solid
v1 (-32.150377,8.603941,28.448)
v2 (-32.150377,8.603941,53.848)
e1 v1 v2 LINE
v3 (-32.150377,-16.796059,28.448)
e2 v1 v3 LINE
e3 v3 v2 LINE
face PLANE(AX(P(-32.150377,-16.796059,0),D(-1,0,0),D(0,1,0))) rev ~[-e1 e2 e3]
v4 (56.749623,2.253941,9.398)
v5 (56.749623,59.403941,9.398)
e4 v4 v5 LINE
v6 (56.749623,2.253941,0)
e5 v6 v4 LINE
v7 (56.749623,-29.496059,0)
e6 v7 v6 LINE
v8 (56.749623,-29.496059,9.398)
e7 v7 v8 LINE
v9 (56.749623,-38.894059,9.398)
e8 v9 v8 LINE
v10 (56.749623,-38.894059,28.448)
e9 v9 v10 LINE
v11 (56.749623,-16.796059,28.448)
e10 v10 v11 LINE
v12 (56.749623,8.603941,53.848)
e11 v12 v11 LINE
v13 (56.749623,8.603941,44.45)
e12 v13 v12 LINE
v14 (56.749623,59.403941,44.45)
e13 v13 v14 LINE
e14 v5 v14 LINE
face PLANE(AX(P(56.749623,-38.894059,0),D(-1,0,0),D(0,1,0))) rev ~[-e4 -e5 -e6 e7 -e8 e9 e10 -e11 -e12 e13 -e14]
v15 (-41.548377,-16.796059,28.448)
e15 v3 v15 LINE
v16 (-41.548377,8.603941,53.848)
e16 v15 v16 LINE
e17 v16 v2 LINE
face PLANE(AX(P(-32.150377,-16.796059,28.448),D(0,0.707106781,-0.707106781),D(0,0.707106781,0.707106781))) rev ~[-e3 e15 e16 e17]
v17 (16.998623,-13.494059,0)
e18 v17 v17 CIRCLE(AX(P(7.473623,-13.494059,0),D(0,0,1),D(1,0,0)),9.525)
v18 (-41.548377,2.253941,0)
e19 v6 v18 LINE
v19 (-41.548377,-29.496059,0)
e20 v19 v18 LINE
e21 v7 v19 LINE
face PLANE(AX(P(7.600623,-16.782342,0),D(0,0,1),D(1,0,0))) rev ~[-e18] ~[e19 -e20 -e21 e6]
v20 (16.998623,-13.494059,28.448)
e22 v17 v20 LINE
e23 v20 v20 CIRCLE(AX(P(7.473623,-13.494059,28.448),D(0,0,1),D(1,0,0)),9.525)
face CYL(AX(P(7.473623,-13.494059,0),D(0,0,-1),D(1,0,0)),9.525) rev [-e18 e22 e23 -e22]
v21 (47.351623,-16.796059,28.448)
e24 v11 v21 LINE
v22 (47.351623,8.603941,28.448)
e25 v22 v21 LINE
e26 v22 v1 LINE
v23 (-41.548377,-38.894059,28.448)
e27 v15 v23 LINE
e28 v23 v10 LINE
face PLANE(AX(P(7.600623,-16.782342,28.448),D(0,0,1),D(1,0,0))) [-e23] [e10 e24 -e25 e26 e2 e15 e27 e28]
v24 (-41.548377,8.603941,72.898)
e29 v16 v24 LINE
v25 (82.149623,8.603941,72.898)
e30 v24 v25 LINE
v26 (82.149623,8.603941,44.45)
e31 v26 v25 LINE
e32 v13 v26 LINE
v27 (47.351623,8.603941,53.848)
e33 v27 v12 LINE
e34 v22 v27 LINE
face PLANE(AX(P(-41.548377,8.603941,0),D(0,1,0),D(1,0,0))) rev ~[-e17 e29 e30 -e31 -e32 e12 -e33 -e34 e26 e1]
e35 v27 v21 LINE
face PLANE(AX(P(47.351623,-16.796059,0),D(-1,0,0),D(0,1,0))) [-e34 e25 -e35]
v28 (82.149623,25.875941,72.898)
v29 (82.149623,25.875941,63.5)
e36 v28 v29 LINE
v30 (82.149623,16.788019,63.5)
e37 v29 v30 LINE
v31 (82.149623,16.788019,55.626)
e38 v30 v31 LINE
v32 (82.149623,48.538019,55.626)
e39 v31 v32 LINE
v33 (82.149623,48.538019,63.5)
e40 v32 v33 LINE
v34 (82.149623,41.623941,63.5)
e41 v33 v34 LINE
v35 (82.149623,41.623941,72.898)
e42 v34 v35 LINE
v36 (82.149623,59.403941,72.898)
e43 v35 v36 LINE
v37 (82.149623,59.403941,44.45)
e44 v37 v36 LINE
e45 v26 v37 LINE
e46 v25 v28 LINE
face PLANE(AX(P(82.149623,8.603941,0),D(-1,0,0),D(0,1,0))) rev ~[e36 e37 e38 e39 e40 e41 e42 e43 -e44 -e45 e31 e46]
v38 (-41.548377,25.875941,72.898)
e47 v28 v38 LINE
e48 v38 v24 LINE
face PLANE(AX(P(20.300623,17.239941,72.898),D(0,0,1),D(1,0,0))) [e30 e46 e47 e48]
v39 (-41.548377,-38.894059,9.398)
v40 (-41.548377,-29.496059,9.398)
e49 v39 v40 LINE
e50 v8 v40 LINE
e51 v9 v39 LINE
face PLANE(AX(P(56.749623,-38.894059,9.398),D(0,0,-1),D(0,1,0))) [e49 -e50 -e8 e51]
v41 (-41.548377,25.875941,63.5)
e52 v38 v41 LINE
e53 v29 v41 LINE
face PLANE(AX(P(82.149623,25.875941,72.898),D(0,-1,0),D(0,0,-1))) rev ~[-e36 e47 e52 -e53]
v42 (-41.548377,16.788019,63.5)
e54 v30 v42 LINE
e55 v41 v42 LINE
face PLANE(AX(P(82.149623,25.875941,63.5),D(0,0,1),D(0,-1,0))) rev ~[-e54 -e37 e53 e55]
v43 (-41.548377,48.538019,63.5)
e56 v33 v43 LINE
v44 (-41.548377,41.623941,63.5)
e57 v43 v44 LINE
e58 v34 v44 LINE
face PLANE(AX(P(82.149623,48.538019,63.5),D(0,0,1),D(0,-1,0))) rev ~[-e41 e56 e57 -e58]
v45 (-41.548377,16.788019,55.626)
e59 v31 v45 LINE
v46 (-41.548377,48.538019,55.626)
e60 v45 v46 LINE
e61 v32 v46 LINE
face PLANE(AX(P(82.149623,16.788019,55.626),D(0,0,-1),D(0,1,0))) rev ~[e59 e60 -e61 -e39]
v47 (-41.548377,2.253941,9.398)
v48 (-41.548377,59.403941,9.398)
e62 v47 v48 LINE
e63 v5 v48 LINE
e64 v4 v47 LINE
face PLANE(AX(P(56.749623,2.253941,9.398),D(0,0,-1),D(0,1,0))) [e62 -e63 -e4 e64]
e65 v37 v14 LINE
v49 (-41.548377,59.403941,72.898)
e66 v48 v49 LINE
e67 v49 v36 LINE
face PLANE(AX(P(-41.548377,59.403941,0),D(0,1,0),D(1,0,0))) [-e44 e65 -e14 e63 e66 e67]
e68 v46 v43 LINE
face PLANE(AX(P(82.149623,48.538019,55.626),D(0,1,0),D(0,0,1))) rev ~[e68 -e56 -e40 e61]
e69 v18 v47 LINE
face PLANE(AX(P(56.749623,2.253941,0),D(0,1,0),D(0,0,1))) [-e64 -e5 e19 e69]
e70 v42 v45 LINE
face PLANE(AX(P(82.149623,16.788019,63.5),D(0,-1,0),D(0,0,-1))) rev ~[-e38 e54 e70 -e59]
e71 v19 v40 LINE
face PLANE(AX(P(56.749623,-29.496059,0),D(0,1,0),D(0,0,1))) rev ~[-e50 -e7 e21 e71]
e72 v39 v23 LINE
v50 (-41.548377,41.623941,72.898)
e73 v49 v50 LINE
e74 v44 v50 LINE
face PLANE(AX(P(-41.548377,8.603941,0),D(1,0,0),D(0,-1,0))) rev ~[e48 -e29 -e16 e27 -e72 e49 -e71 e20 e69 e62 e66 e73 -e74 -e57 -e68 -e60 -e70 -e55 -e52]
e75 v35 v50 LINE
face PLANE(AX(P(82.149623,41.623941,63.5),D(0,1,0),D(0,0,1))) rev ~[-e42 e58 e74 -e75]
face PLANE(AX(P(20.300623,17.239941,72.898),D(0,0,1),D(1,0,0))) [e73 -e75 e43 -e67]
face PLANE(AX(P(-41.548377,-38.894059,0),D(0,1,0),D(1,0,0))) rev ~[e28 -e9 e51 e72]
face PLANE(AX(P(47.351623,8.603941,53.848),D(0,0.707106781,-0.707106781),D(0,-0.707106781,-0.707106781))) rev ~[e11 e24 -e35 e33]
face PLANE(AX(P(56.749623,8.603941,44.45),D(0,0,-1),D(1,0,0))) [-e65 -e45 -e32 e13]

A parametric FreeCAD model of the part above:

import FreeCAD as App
import Part
import Sketcher

V = App.Vector
Q = App.Units.Quantity

doc = App.newDocument("Part")
body = doc.addObject("PartDesign::Body", "Body")

# Sketch on XY plane
sketch1 = body.newObject("Sketcher::SketchObject", "Sketch")
sketch1.AttachmentSupport = (doc.getObject("XY_Plane"), [""])
sketch1.MapMode = "FlatFace"
sketch1.addGeometry(Part.LineSegment(V(-41.548377, 8.603941, 0), V(82.149623, 8.603941, 0)), False)
sketch1.addGeometry(Part.LineSegment(V(82.149623, 8.603941, 0), V(82.149623, 59.403941, 0)), False)
sketch1.addGeometry(Part.LineSegment(V(82.149623, 59.403941, 0), V(-41.548377, 59.403941, 0)), False)
sketch1.addGeometry(Part.LineSegment(V(-41.548377, 59.403941, 0), V(-41.548377, 8.603941, 0)), False)
sketch1.addConstraint(Sketcher.Constraint("Coincident", 0, 2, 1, 1))
sketch1.addConstraint(Sketcher.Constraint("Coincident", 1, 2, 2, 1))
sketch1.addConstraint(Sketcher.Constraint("Coincident", 2, 2, 3, 1))
sketch1.addConstraint(Sketcher.Constraint("Coincident", 3, 2, 0, 1))
sketch1.addConstraint(Sketcher.Constraint("Horizontal", 0))
sketch1.addConstraint(Sketcher.Constraint("Vertical", 1))
sketch1.addConstraint(Sketcher.Constraint("Horizontal", 2))
sketch1.addConstraint(Sketcher.Constraint("Vertical", 3))
sketch1.addConstraint(Sketcher.Constraint("DistanceY", 1, 1, 1, 2, Q("2 in")))
sketch1.addConstraint(Sketcher.Constraint("DistanceX", 0, 1, 0, 2, Q("4.87 in")))
sketch1.addConstraint(Sketcher.Constraint("DistanceY", -1, 1, 0, 2, Q("8.603941 mm")))
sketch1.addConstraint(Sketcher.Constraint("DistanceX", -1, 1, 0, 2, Q("82.149623 mm")))
pad1 = body.newObject("PartDesign::Pad", "Pad")
pad1.Profile = sketch1
pad1.Length = Q("2.87 in")

# Sketch on XY plane
sketch2 = body.newObject("Sketcher::SketchObject", "Sketch001")
sketch2.AttachmentSupport = (doc.getObject("XY_Plane"), [""])
sketch2.MapMode = "FlatFace"
sketch2.addGeometry(Part.LineSegment(V(-41.548377, -38.894059, 0), V(56.749623, -38.894059, 0)), False)
sketch2.addGeometry(Part.LineSegment(V(56.749623, -38.894059, 0), V(56.749623, 8.603941, 0)), False)
sketch2.addGeometry(Part.LineSegment(V(56.749623, 8.603941, 0), V(-41.548377, 8.603941, 0)), False)
sketch2.addGeometry(Part.LineSegment(V(-41.548377, 8.603941, 0), V(-41.548377, -38.894059, 0)), False)
sketch2.addGeometry(Part.Circle(V(7.473623, -13.494059, 0), V(0, 0, 1), 9.525), False)
sketch2.addConstraint(Sketcher.Constraint("Coincident", 0, 2, 1, 1))
sketch2.addConstraint(Sketcher.Constraint("Coincident", 1, 2, 2, 1))
sketch2.addConstraint(Sketcher.Constraint("Coincident", 2, 2, 3, 1))
sketch2.addConstraint(Sketcher.Constraint("Coincident", 3, 2, 0, 1))
sketch2.addConstraint(Sketcher.Constraint("Horizontal", 0))
sketch2.addConstraint(Sketcher.Constraint("Vertical", 1))
sketch2.addConstraint(Sketcher.Constraint("Horizontal", 2))
sketch2.addConstraint(Sketcher.Constraint("Vertical", 3))
sketch2.addConstraint(Sketcher.Constraint("Diameter", 4, Q("0.75 in")))
sketch2.addConstraint(Sketcher.Constraint("DistanceY", 0, 2, 4, 3, Q("1 in")))
sketch2.addConstraint(Sketcher.Constraint("DistanceX", 0, 1, 0, 2, Q("3.87 in")))
sketch2.addConstraint(Sketcher.Constraint("DistanceY", 1, 1, 1, 2, Q("1.87 in")))
sketch2.addConstraint(Sketcher.Constraint("DistanceX", 4, 3, 0, 2, Q("1.94 in")))
sketch2.addConstraint(Sketcher.Constraint("DistanceY", 4, 3, -1, 1, Q("13.494059 mm")))
sketch2.addConstraint(Sketcher.Constraint("DistanceX", -1, 1, 4, 3, Q("7.473623 mm")))
pad2 = body.newObject("PartDesign::Pad", "Pad001")
pad2.Profile = sketch2
pad2.Length = Q("1.12 in")

# Sketch on XY plane
sketch3 = body.newObject("Sketcher::SketchObject", "Sketch002")
sketch3.AttachmentSupport = (doc.getObject("XY_Plane"), [""])
sketch3.MapMode = "FlatFace"
sketch3.addGeometry(Part.LineSegment(V(47.351623, 8.603941, 0), V(47.351623, -16.796059, 0)), False)
sketch3.addGeometry(Part.LineSegment(V(47.351623, -16.796059, 0), V(56.749623, -16.796059, 0)), False)
sketch3.addGeometry(Part.LineSegment(V(56.749623, -16.796059, 0), V(56.749623, 8.603941, 0)), False)
sketch3.addGeometry(Part.LineSegment(V(56.749623, 8.603941, 0), V(47.351623, 8.603941, 0)), False)
sketch3.addGeometry(Part.LineSegment(V(-41.548377, 8.603941, 0), V(-41.548377, -16.796059, 0)), False)
sketch3.addGeometry(Part.LineSegment(V(-41.548377, -16.796059, 0), V(-32.150377, -16.796059, 0)), False)
sketch3.addGeometry(Part.LineSegment(V(-32.150377, -16.796059, 0), V(-32.150377, 8.603941, 0)), False)
sketch3.addGeometry(Part.LineSegment(V(-32.150377, 8.603941, 0), V(-41.548377, 8.603941, 0)), False)
sketch3.addConstraint(Sketcher.Constraint("Coincident", 0, 2, 1, 1))
sketch3.addConstraint(Sketcher.Constraint("Coincident", 1, 2, 2, 1))
sketch3.addConstraint(Sketcher.Constraint("Coincident", 2, 2, 3, 1))
sketch3.addConstraint(Sketcher.Constraint("Coincident", 3, 2, 0, 1))
sketch3.addConstraint(Sketcher.Constraint("Coincident", 4, 2, 5, 1))
sketch3.addConstraint(Sketcher.Constraint("Coincident", 5, 2, 6, 1))
sketch3.addConstraint(Sketcher.Constraint("Coincident", 6, 2, 7, 1))
sketch3.addConstraint(Sketcher.Constraint("Coincident", 7, 2, 4, 1))
sketch3.addConstraint(Sketcher.Constraint("Vertical", 0))
sketch3.addConstraint(Sketcher.Constraint("Horizontal", 1))
sketch3.addConstraint(Sketcher.Constraint("Vertical", 2))
sketch3.addConstraint(Sketcher.Constraint("Horizontal", 3))
sketch3.addConstraint(Sketcher.Constraint("Vertical", 4))
sketch3.addConstraint(Sketcher.Constraint("Horizontal", 5))
sketch3.addConstraint(Sketcher.Constraint("Vertical", 6))
sketch3.addConstraint(Sketcher.Constraint("Horizontal", 7))
sketch3.addConstraint(Sketcher.Constraint("Horizontal", 1, 2, 4, 2))
sketch3.addConstraint(Sketcher.Constraint("Horizontal", 3, 2, 6, 2))
sketch3.addConstraint(Sketcher.Constraint("Equal", 3, 5))
sketch3.addConstraint(Sketcher.Constraint("DistanceY", 0, 2, 0, 1, Q("1 in")))
sketch3.addConstraint(Sketcher.Constraint("DistanceX", 1, 1, 1, 2, Q("0.37 in")))
sketch3.addConstraint(Sketcher.Constraint("DistanceX", 4, 2, 0, 2, Q("3.5 in")))
sketch3.addConstraint(Sketcher.Constraint("DistanceY", 0, 2, -1, 1, Q("16.796059 mm")))
sketch3.addConstraint(Sketcher.Constraint("DistanceX", -1, 1, 0, 2, Q("47.351623 mm")))
pad3 = body.newObject("PartDesign::Pad", "Pad002")
pad3.Profile = sketch3
pad3.Length = Q("2.12 in")

# Sketch on YZ plane
sketch4 = body.newObject("Sketcher::SketchObject", "Sketch003")
sketch4.AttachmentSupport = (doc.getObject("YZ_Plane"), [""])
sketch4.MapMode = "FlatFace"
sketch4.AttachmentOffset = App.Placement(V(0, 0, 82.149623), App.Rotation())
sketch4.addGeometry(Part.LineSegment(V(8.603941, 40.196229, 0), V(8.603941, 0, 0)), False)
sketch4.addGeometry(Part.LineSegment(V(8.603941, 0, 0), V(59.403941, 0, 0)), False)
sketch4.addGeometry(Part.LineSegment(V(59.403941, 0, 0), V(59.403941, 40.196229, 0)), False)
sketch4.addGeometry(Part.LineSegment(V(59.403941, 40.196229, 0), V(8.603941, 40.196229, 0)), False)
sketch4.addConstraint(Sketcher.Constraint("Coincident", 0, 2, 1, 1))
sketch4.addConstraint(Sketcher.Constraint("Coincident", 1, 2, 2, 1))
sketch4.addConstraint(Sketcher.Constraint("Coincident", 2, 2, 3, 1))
sketch4.addConstraint(Sketcher.Constraint("Coincident", 3, 2, 0, 1))
sketch4.addConstraint(Sketcher.Constraint("Vertical", 0))
sketch4.addConstraint(Sketcher.Constraint("Horizontal", 1))
sketch4.addConstraint(Sketcher.Constraint("Vertical", 2))
sketch4.addConstraint(Sketcher.Constraint("Horizontal", 3))
sketch4.addConstraint(Sketcher.Constraint("PointOnObject", 0, 2, -1))
sketch4.addConstraint(Sketcher.Constraint("DistanceX", 1, 1, 1, 2, Q("2 in")))
sketch4.addConstraint(Sketcher.Constraint("DistanceY", 0, 2, 0, 1, Q("40.196229 mm")))
sketch4.addConstraint(Sketcher.Constraint("DistanceX", -1, 1, 0, 2, Q("8.603941 mm")))
pocket1 = body.newObject("PartDesign::Pocket", "Pocket")
pocket1.Profile = sketch4
pocket1.Length = Q("1 in")

# Sketch on YZ plane
sketch5 = body.newObject("Sketcher::SketchObject", "Sketch004")
sketch5.AttachmentSupport = (doc.getObject("YZ_Plane"), [""])
sketch5.MapMode = "FlatFace"
sketch5.AttachmentOffset = App.Placement(V(0, 0, 56.749623), App.Rotation())
sketch5.addGeometry(Part.LineSegment(V(-38.894059, 9.398, 0), V(-38.894059, 0, 0)), False)
sketch5.addGeometry(Part.LineSegment(V(-38.894059, 0, 0), V(-29.496059, 0, 0)), False)
sketch5.addGeometry(Part.LineSegment(V(-29.496059, 0, 0), V(-29.496059, 9.398, 0)), False)
sketch5.addGeometry(Part.LineSegment(V(-29.496059, 9.398, 0), V(-38.894059, 9.398, 0)), False)
sketch5.addConstraint(Sketcher.Constraint("Coincident", 0, 2, 1, 1))
sketch5.addConstraint(Sketcher.Constraint("Coincident", 1, 2, 2, 1))
sketch5.addConstraint(Sketcher.Constraint("Coincident", 2, 2, 3, 1))
sketch5.addConstraint(Sketcher.Constraint("Coincident", 3, 2, 0, 1))
sketch5.addConstraint(Sketcher.Constraint("Vertical", 0))
sketch5.addConstraint(Sketcher.Constraint("Horizontal", 1))
sketch5.addConstraint(Sketcher.Constraint("Vertical", 2))
sketch5.addConstraint(Sketcher.Constraint("Horizontal", 3))
sketch5.addConstraint(Sketcher.Constraint("PointOnObject", 0, 2, -1))
sketch5.addConstraint(Sketcher.Constraint("Equal", 3, 0))
sketch5.addConstraint(Sketcher.Constraint("DistanceX", 1, 1, 1, 2, Q("0.37 in")))
sketch5.addConstraint(Sketcher.Constraint("DistanceX", 0, 2, -1, 1, Q("38.894059 mm")))
pocket2 = body.newObject("PartDesign::Pocket", "Pocket001")
pocket2.Profile = sketch5
pocket2.Length = Q("4.37 in")

# Sketch on YZ plane
sketch6 = body.newObject("Sketcher::SketchObject", "Sketch005")
sketch6.AttachmentSupport = (doc.getObject("YZ_Plane"), [""])
sketch6.MapMode = "FlatFace"
sketch6.AttachmentOffset = App.Placement(V(0, 0, 56.749623), App.Rotation())
sketch6.addGeometry(Part.LineSegment(V(2.253941, 9.398, 0), V(2.253941, 0, 0)), False)
sketch6.addGeometry(Part.LineSegment(V(2.253941, 0, 0), V(59.403941, 0, 0)), False)
sketch6.addGeometry(Part.LineSegment(V(59.403941, 0, 0), V(59.403941, 9.398, 0)), False)
sketch6.addGeometry(Part.LineSegment(V(59.403941, 9.398, 0), V(2.253941, 9.398, 0)), False)
sketch6.addConstraint(Sketcher.Constraint("Coincident", 0, 2, 1, 1))
sketch6.addConstraint(Sketcher.Constraint("Coincident", 1, 2, 2, 1))
sketch6.addConstraint(Sketcher.Constraint("Coincident", 2, 2, 3, 1))
sketch6.addConstraint(Sketcher.Constraint("Coincident", 3, 2, 0, 1))
sketch6.addConstraint(Sketcher.Constraint("Vertical", 0))
sketch6.addConstraint(Sketcher.Constraint("Horizontal", 1))
sketch6.addConstraint(Sketcher.Constraint("Vertical", 2))
sketch6.addConstraint(Sketcher.Constraint("Horizontal", 3))
sketch6.addConstraint(Sketcher.Constraint("PointOnObject", 0, 2, -1))
sketch6.addConstraint(Sketcher.Constraint("DistanceX", 1, 1, 1, 2, Q("2.25 in")))
sketch6.addConstraint(Sketcher.Constraint("DistanceY", 0, 2, 0, 1, Q("0.37 in")))
sketch6.addConstraint(Sketcher.Constraint("DistanceX", -1, 1, 0, 2, Q("2.253941 mm")))
pocket3 = body.newObject("PartDesign::Pocket", "Pocket002")
pocket3.Profile = sketch6
pocket3.Length = Q("4.74 in")

# Sketch on YZ plane
sketch7 = body.newObject("Sketcher::SketchObject", "Sketch006")
sketch7.AttachmentSupport = (doc.getObject("YZ_Plane"), [""])
sketch7.MapMode = "FlatFace"
sketch7.AttachmentOffset = App.Placement(V(0, 0, -32.150377), App.Rotation())
sketch7.addGeometry(Part.LineSegment(V(-16.796059, 53.848, 0), V(-16.796059, 28.448, 0)), False)
sketch7.addGeometry(Part.LineSegment(V(-16.796059, 28.448, 0), V(8.603941, 53.848, 0)), False)
sketch7.addGeometry(Part.LineSegment(V(8.603941, 53.848, 0), V(-16.796059, 53.848, 0)), False)
sketch7.addConstraint(Sketcher.Constraint("Coincident", 0, 2, 1, 1))
sketch7.addConstraint(Sketcher.Constraint("Coincident", 1, 2, 2, 1))
sketch7.addConstraint(Sketcher.Constraint("Coincident", 2, 2, 0, 1))
sketch7.addConstraint(Sketcher.Constraint("Vertical", 0))
sketch7.addConstraint(Sketcher.Constraint("Horizontal", 2))
sketch7.addConstraint(Sketcher.Constraint("Equal", 2, 0))
sketch7.addConstraint(Sketcher.Constraint("DistanceX", 2, 2, 2, 1, Q("1 in")))
sketch7.addConstraint(Sketcher.Constraint("DistanceY", -1, 1, 0, 2, Q("1.12 in")))
sketch7.addConstraint(Sketcher.Constraint("DistanceX", 0, 2, -1, 1, Q("16.796059 mm")))
pocket4 = body.newObject("PartDesign::Pocket", "Pocket003")
pocket4.Profile = sketch7
pocket4.Length = Q("1 in")

# Sketch on YZ plane
sketch8 = body.newObject("Sketcher::SketchObject", "Sketch007")
sketch8.AttachmentSupport = (doc.getObject("YZ_Plane"), [""])
sketch8.MapMode = "FlatFace"
sketch8.AttachmentOffset = App.Placement(V(0, 0, 47.351623), App.Rotation())
sketch8.addGeometry(Part.LineSegment(V(-16.796059, 53.848, 0), V(8.603941, 53.848, 0)), False)
sketch8.addGeometry(Part.LineSegment(V(8.603941, 53.848, 0), V(-16.796059, 28.448, 0)), False)
sketch8.addGeometry(Part.LineSegment(V(-16.796059, 28.448, 0), V(-16.796059, 53.848, 0)), False)
sketch8.addConstraint(Sketcher.Constraint("Coincident", 0, 2, 1, 1))
sketch8.addConstraint(Sketcher.Constraint("Coincident", 1, 2, 2, 1))
sketch8.addConstraint(Sketcher.Constraint("Coincident", 2, 2, 0, 1))
sketch8.addConstraint(Sketcher.Constraint("Horizontal", 0))
sketch8.addConstraint(Sketcher.Constraint("Vertical", 2))
sketch8.addConstraint(Sketcher.Constraint("Equal", 0, 2))
sketch8.addConstraint(Sketcher.Constraint("DistanceX", 0, 1, 0, 2, Q("1 in")))
sketch8.addConstraint(Sketcher.Constraint("DistanceY", -1, 1, 0, 2, Q("2.12 in")))
sketch8.addConstraint(Sketcher.Constraint("DistanceX", -1, 1, 0, 2, Q("8.603941 mm")))
pocket5 = body.newObject("PartDesign::Pocket", "Pocket004")
pocket5.Profile = sketch8
pocket5.Length = Q("1 in")
pocket5.Reversed = True

# Sketch on XZ plane
sketch9 = body.newObject("Sketcher::SketchObject", "Sketch008")
sketch9.AttachmentSupport = (doc.getObject("XZ_Plane"), [""])
sketch9.MapMode = "FlatFace"
sketch9.AttachmentOffset = App.Placement(V(0, 0, -8.603941), App.Rotation())
sketch9.addGeometry(Part.LineSegment(V(56.749623, 44.45, 0), V(56.749623, 0, 0)), False)
sketch9.addGeometry(Part.LineSegment(V(56.749623, 0, 0), V(82.149623, 0, 0)), False)
sketch9.addGeometry(Part.LineSegment(V(82.149623, 0, 0), V(82.149623, 44.45, 0)), False)
sketch9.addGeometry(Part.LineSegment(V(82.149623, 44.45, 0), V(56.749623, 44.45, 0)), False)
sketch9.addConstraint(Sketcher.Constraint("Coincident", 0, 2, 1, 1))
sketch9.addConstraint(Sketcher.Constraint("Coincident", 1, 2, 2, 1))
sketch9.addConstraint(Sketcher.Constraint("Coincident", 2, 2, 3, 1))
sketch9.addConstraint(Sketcher.Constraint("Coincident", 3, 2, 0, 1))
sketch9.addConstraint(Sketcher.Constraint("Vertical", 0))
sketch9.addConstraint(Sketcher.Constraint("Horizontal", 1))
sketch9.addConstraint(Sketcher.Constraint("Vertical", 2))
sketch9.addConstraint(Sketcher.Constraint("Horizontal", 3))
sketch9.addConstraint(Sketcher.Constraint("PointOnObject", 0, 2, -1))
sketch9.addConstraint(Sketcher.Constraint("DistanceX", 1, 1, 1, 2, Q("1 in")))
sketch9.addConstraint(Sketcher.Constraint("DistanceY", 0, 2, 0, 1, Q("1.75 in")))
sketch9.addConstraint(Sketcher.Constraint("DistanceX", -1, 1, 0, 2, Q("56.749623 mm")))
pocket6 = body.newObject("PartDesign::Pocket", "Pocket005")
pocket6.Profile = sketch9
pocket6.Length = Q("2.58 in")

# Sketch on YZ plane
sketch10 = body.newObject("Sketcher::SketchObject", "Sketch009")
sketch10.AttachmentSupport = (doc.getObject("YZ_Plane"), [""])
sketch10.MapMode = "FlatFace"
sketch10.AttachmentOffset = App.Placement(V(0, 0, 82.149623), App.Rotation())
sketch10.addGeometry(Part.LineSegment(V(41.623941, 72.898, 0), V(25.875941, 72.898, 0)), False)
sketch10.addGeometry(Part.LineSegment(V(25.875941, 72.898, 0), V(25.875941, 63.5, 0)), False)
sketch10.addGeometry(Part.LineSegment(V(25.875941, 63.5, 0), V(16.788019, 63.5, 0)), False)
sketch10.addGeometry(Part.LineSegment(V(16.788019, 63.5, 0), V(16.788019, 55.626, 0)), False)
sketch10.addGeometry(Part.LineSegment(V(16.788019, 55.626, 0), V(48.538019, 55.626, 0)), False)
sketch10.addGeometry(Part.LineSegment(V(48.538019, 55.626, 0), V(48.538019, 63.5, 0)), False)
sketch10.addGeometry(Part.LineSegment(V(48.538019, 63.5, 0), V(41.623941, 63.5, 0)), False)
sketch10.addGeometry(Part.LineSegment(V(41.623941, 63.5, 0), V(41.623941, 72.898, 0)), False)
sketch10.addConstraint(Sketcher.Constraint("Coincident", 0, 2, 1, 1))
sketch10.addConstraint(Sketcher.Constraint("Coincident", 1, 2, 2, 1))
sketch10.addConstraint(Sketcher.Constraint("Coincident", 2, 2, 3, 1))
sketch10.addConstraint(Sketcher.Constraint("Coincident", 3, 2, 4, 1))
sketch10.addConstraint(Sketcher.Constraint("Coincident", 4, 2, 5, 1))
sketch10.addConstraint(Sketcher.Constraint("Coincident", 5, 2, 6, 1))
sketch10.addConstraint(Sketcher.Constraint("Coincident", 6, 2, 7, 1))
sketch10.addConstraint(Sketcher.Constraint("Coincident", 7, 2, 0, 1))
sketch10.addConstraint(Sketcher.Constraint("Horizontal", 0))
sketch10.addConstraint(Sketcher.Constraint("Vertical", 1))
sketch10.addConstraint(Sketcher.Constraint("Horizontal", 2))
sketch10.addConstraint(Sketcher.Constraint("Vertical", 3))
sketch10.addConstraint(Sketcher.Constraint("Horizontal", 4))
sketch10.addConstraint(Sketcher.Constraint("Vertical", 5))
sketch10.addConstraint(Sketcher.Constraint("Horizontal", 6))
sketch10.addConstraint(Sketcher.Constraint("Vertical", 7))
sketch10.addConstraint(Sketcher.Constraint("Horizontal", 2, 2, 5, 2))
sketch10.addConstraint(Sketcher.Constraint("DistanceX", 0, 2, 0, 1, Q("0.62 in")))
sketch10.addConstraint(Sketcher.Constraint("DistanceX", 4, 1, 4, 2, Q("1.25 in")))
sketch10.addConstraint(Sketcher.Constraint("DistanceY", 1, 2, 1, 1, Q("0.37 in")))
sketch10.addConstraint(Sketcher.Constraint("DistanceY", 3, 2, 3, 1, Q("0.31 in")))
sketch10.addConstraint(Sketcher.Constraint("DistanceY", -1, 1, 1, 2, Q("2.5 in")))
sketch10.addConstraint(Sketcher.Constraint("DistanceX", 2, 2, 2, 1, Q("9.087922 mm")))
sketch10.addConstraint(Sketcher.Constraint("DistanceX", -1, 1, 0, 2, Q("25.875941 mm")))
pocket7 = body.newObject("PartDesign::Pocket", "Pocket006")
pocket7.Profile = sketch10
pocket7.Length = Q("6.34 in")

doc.recompute()
